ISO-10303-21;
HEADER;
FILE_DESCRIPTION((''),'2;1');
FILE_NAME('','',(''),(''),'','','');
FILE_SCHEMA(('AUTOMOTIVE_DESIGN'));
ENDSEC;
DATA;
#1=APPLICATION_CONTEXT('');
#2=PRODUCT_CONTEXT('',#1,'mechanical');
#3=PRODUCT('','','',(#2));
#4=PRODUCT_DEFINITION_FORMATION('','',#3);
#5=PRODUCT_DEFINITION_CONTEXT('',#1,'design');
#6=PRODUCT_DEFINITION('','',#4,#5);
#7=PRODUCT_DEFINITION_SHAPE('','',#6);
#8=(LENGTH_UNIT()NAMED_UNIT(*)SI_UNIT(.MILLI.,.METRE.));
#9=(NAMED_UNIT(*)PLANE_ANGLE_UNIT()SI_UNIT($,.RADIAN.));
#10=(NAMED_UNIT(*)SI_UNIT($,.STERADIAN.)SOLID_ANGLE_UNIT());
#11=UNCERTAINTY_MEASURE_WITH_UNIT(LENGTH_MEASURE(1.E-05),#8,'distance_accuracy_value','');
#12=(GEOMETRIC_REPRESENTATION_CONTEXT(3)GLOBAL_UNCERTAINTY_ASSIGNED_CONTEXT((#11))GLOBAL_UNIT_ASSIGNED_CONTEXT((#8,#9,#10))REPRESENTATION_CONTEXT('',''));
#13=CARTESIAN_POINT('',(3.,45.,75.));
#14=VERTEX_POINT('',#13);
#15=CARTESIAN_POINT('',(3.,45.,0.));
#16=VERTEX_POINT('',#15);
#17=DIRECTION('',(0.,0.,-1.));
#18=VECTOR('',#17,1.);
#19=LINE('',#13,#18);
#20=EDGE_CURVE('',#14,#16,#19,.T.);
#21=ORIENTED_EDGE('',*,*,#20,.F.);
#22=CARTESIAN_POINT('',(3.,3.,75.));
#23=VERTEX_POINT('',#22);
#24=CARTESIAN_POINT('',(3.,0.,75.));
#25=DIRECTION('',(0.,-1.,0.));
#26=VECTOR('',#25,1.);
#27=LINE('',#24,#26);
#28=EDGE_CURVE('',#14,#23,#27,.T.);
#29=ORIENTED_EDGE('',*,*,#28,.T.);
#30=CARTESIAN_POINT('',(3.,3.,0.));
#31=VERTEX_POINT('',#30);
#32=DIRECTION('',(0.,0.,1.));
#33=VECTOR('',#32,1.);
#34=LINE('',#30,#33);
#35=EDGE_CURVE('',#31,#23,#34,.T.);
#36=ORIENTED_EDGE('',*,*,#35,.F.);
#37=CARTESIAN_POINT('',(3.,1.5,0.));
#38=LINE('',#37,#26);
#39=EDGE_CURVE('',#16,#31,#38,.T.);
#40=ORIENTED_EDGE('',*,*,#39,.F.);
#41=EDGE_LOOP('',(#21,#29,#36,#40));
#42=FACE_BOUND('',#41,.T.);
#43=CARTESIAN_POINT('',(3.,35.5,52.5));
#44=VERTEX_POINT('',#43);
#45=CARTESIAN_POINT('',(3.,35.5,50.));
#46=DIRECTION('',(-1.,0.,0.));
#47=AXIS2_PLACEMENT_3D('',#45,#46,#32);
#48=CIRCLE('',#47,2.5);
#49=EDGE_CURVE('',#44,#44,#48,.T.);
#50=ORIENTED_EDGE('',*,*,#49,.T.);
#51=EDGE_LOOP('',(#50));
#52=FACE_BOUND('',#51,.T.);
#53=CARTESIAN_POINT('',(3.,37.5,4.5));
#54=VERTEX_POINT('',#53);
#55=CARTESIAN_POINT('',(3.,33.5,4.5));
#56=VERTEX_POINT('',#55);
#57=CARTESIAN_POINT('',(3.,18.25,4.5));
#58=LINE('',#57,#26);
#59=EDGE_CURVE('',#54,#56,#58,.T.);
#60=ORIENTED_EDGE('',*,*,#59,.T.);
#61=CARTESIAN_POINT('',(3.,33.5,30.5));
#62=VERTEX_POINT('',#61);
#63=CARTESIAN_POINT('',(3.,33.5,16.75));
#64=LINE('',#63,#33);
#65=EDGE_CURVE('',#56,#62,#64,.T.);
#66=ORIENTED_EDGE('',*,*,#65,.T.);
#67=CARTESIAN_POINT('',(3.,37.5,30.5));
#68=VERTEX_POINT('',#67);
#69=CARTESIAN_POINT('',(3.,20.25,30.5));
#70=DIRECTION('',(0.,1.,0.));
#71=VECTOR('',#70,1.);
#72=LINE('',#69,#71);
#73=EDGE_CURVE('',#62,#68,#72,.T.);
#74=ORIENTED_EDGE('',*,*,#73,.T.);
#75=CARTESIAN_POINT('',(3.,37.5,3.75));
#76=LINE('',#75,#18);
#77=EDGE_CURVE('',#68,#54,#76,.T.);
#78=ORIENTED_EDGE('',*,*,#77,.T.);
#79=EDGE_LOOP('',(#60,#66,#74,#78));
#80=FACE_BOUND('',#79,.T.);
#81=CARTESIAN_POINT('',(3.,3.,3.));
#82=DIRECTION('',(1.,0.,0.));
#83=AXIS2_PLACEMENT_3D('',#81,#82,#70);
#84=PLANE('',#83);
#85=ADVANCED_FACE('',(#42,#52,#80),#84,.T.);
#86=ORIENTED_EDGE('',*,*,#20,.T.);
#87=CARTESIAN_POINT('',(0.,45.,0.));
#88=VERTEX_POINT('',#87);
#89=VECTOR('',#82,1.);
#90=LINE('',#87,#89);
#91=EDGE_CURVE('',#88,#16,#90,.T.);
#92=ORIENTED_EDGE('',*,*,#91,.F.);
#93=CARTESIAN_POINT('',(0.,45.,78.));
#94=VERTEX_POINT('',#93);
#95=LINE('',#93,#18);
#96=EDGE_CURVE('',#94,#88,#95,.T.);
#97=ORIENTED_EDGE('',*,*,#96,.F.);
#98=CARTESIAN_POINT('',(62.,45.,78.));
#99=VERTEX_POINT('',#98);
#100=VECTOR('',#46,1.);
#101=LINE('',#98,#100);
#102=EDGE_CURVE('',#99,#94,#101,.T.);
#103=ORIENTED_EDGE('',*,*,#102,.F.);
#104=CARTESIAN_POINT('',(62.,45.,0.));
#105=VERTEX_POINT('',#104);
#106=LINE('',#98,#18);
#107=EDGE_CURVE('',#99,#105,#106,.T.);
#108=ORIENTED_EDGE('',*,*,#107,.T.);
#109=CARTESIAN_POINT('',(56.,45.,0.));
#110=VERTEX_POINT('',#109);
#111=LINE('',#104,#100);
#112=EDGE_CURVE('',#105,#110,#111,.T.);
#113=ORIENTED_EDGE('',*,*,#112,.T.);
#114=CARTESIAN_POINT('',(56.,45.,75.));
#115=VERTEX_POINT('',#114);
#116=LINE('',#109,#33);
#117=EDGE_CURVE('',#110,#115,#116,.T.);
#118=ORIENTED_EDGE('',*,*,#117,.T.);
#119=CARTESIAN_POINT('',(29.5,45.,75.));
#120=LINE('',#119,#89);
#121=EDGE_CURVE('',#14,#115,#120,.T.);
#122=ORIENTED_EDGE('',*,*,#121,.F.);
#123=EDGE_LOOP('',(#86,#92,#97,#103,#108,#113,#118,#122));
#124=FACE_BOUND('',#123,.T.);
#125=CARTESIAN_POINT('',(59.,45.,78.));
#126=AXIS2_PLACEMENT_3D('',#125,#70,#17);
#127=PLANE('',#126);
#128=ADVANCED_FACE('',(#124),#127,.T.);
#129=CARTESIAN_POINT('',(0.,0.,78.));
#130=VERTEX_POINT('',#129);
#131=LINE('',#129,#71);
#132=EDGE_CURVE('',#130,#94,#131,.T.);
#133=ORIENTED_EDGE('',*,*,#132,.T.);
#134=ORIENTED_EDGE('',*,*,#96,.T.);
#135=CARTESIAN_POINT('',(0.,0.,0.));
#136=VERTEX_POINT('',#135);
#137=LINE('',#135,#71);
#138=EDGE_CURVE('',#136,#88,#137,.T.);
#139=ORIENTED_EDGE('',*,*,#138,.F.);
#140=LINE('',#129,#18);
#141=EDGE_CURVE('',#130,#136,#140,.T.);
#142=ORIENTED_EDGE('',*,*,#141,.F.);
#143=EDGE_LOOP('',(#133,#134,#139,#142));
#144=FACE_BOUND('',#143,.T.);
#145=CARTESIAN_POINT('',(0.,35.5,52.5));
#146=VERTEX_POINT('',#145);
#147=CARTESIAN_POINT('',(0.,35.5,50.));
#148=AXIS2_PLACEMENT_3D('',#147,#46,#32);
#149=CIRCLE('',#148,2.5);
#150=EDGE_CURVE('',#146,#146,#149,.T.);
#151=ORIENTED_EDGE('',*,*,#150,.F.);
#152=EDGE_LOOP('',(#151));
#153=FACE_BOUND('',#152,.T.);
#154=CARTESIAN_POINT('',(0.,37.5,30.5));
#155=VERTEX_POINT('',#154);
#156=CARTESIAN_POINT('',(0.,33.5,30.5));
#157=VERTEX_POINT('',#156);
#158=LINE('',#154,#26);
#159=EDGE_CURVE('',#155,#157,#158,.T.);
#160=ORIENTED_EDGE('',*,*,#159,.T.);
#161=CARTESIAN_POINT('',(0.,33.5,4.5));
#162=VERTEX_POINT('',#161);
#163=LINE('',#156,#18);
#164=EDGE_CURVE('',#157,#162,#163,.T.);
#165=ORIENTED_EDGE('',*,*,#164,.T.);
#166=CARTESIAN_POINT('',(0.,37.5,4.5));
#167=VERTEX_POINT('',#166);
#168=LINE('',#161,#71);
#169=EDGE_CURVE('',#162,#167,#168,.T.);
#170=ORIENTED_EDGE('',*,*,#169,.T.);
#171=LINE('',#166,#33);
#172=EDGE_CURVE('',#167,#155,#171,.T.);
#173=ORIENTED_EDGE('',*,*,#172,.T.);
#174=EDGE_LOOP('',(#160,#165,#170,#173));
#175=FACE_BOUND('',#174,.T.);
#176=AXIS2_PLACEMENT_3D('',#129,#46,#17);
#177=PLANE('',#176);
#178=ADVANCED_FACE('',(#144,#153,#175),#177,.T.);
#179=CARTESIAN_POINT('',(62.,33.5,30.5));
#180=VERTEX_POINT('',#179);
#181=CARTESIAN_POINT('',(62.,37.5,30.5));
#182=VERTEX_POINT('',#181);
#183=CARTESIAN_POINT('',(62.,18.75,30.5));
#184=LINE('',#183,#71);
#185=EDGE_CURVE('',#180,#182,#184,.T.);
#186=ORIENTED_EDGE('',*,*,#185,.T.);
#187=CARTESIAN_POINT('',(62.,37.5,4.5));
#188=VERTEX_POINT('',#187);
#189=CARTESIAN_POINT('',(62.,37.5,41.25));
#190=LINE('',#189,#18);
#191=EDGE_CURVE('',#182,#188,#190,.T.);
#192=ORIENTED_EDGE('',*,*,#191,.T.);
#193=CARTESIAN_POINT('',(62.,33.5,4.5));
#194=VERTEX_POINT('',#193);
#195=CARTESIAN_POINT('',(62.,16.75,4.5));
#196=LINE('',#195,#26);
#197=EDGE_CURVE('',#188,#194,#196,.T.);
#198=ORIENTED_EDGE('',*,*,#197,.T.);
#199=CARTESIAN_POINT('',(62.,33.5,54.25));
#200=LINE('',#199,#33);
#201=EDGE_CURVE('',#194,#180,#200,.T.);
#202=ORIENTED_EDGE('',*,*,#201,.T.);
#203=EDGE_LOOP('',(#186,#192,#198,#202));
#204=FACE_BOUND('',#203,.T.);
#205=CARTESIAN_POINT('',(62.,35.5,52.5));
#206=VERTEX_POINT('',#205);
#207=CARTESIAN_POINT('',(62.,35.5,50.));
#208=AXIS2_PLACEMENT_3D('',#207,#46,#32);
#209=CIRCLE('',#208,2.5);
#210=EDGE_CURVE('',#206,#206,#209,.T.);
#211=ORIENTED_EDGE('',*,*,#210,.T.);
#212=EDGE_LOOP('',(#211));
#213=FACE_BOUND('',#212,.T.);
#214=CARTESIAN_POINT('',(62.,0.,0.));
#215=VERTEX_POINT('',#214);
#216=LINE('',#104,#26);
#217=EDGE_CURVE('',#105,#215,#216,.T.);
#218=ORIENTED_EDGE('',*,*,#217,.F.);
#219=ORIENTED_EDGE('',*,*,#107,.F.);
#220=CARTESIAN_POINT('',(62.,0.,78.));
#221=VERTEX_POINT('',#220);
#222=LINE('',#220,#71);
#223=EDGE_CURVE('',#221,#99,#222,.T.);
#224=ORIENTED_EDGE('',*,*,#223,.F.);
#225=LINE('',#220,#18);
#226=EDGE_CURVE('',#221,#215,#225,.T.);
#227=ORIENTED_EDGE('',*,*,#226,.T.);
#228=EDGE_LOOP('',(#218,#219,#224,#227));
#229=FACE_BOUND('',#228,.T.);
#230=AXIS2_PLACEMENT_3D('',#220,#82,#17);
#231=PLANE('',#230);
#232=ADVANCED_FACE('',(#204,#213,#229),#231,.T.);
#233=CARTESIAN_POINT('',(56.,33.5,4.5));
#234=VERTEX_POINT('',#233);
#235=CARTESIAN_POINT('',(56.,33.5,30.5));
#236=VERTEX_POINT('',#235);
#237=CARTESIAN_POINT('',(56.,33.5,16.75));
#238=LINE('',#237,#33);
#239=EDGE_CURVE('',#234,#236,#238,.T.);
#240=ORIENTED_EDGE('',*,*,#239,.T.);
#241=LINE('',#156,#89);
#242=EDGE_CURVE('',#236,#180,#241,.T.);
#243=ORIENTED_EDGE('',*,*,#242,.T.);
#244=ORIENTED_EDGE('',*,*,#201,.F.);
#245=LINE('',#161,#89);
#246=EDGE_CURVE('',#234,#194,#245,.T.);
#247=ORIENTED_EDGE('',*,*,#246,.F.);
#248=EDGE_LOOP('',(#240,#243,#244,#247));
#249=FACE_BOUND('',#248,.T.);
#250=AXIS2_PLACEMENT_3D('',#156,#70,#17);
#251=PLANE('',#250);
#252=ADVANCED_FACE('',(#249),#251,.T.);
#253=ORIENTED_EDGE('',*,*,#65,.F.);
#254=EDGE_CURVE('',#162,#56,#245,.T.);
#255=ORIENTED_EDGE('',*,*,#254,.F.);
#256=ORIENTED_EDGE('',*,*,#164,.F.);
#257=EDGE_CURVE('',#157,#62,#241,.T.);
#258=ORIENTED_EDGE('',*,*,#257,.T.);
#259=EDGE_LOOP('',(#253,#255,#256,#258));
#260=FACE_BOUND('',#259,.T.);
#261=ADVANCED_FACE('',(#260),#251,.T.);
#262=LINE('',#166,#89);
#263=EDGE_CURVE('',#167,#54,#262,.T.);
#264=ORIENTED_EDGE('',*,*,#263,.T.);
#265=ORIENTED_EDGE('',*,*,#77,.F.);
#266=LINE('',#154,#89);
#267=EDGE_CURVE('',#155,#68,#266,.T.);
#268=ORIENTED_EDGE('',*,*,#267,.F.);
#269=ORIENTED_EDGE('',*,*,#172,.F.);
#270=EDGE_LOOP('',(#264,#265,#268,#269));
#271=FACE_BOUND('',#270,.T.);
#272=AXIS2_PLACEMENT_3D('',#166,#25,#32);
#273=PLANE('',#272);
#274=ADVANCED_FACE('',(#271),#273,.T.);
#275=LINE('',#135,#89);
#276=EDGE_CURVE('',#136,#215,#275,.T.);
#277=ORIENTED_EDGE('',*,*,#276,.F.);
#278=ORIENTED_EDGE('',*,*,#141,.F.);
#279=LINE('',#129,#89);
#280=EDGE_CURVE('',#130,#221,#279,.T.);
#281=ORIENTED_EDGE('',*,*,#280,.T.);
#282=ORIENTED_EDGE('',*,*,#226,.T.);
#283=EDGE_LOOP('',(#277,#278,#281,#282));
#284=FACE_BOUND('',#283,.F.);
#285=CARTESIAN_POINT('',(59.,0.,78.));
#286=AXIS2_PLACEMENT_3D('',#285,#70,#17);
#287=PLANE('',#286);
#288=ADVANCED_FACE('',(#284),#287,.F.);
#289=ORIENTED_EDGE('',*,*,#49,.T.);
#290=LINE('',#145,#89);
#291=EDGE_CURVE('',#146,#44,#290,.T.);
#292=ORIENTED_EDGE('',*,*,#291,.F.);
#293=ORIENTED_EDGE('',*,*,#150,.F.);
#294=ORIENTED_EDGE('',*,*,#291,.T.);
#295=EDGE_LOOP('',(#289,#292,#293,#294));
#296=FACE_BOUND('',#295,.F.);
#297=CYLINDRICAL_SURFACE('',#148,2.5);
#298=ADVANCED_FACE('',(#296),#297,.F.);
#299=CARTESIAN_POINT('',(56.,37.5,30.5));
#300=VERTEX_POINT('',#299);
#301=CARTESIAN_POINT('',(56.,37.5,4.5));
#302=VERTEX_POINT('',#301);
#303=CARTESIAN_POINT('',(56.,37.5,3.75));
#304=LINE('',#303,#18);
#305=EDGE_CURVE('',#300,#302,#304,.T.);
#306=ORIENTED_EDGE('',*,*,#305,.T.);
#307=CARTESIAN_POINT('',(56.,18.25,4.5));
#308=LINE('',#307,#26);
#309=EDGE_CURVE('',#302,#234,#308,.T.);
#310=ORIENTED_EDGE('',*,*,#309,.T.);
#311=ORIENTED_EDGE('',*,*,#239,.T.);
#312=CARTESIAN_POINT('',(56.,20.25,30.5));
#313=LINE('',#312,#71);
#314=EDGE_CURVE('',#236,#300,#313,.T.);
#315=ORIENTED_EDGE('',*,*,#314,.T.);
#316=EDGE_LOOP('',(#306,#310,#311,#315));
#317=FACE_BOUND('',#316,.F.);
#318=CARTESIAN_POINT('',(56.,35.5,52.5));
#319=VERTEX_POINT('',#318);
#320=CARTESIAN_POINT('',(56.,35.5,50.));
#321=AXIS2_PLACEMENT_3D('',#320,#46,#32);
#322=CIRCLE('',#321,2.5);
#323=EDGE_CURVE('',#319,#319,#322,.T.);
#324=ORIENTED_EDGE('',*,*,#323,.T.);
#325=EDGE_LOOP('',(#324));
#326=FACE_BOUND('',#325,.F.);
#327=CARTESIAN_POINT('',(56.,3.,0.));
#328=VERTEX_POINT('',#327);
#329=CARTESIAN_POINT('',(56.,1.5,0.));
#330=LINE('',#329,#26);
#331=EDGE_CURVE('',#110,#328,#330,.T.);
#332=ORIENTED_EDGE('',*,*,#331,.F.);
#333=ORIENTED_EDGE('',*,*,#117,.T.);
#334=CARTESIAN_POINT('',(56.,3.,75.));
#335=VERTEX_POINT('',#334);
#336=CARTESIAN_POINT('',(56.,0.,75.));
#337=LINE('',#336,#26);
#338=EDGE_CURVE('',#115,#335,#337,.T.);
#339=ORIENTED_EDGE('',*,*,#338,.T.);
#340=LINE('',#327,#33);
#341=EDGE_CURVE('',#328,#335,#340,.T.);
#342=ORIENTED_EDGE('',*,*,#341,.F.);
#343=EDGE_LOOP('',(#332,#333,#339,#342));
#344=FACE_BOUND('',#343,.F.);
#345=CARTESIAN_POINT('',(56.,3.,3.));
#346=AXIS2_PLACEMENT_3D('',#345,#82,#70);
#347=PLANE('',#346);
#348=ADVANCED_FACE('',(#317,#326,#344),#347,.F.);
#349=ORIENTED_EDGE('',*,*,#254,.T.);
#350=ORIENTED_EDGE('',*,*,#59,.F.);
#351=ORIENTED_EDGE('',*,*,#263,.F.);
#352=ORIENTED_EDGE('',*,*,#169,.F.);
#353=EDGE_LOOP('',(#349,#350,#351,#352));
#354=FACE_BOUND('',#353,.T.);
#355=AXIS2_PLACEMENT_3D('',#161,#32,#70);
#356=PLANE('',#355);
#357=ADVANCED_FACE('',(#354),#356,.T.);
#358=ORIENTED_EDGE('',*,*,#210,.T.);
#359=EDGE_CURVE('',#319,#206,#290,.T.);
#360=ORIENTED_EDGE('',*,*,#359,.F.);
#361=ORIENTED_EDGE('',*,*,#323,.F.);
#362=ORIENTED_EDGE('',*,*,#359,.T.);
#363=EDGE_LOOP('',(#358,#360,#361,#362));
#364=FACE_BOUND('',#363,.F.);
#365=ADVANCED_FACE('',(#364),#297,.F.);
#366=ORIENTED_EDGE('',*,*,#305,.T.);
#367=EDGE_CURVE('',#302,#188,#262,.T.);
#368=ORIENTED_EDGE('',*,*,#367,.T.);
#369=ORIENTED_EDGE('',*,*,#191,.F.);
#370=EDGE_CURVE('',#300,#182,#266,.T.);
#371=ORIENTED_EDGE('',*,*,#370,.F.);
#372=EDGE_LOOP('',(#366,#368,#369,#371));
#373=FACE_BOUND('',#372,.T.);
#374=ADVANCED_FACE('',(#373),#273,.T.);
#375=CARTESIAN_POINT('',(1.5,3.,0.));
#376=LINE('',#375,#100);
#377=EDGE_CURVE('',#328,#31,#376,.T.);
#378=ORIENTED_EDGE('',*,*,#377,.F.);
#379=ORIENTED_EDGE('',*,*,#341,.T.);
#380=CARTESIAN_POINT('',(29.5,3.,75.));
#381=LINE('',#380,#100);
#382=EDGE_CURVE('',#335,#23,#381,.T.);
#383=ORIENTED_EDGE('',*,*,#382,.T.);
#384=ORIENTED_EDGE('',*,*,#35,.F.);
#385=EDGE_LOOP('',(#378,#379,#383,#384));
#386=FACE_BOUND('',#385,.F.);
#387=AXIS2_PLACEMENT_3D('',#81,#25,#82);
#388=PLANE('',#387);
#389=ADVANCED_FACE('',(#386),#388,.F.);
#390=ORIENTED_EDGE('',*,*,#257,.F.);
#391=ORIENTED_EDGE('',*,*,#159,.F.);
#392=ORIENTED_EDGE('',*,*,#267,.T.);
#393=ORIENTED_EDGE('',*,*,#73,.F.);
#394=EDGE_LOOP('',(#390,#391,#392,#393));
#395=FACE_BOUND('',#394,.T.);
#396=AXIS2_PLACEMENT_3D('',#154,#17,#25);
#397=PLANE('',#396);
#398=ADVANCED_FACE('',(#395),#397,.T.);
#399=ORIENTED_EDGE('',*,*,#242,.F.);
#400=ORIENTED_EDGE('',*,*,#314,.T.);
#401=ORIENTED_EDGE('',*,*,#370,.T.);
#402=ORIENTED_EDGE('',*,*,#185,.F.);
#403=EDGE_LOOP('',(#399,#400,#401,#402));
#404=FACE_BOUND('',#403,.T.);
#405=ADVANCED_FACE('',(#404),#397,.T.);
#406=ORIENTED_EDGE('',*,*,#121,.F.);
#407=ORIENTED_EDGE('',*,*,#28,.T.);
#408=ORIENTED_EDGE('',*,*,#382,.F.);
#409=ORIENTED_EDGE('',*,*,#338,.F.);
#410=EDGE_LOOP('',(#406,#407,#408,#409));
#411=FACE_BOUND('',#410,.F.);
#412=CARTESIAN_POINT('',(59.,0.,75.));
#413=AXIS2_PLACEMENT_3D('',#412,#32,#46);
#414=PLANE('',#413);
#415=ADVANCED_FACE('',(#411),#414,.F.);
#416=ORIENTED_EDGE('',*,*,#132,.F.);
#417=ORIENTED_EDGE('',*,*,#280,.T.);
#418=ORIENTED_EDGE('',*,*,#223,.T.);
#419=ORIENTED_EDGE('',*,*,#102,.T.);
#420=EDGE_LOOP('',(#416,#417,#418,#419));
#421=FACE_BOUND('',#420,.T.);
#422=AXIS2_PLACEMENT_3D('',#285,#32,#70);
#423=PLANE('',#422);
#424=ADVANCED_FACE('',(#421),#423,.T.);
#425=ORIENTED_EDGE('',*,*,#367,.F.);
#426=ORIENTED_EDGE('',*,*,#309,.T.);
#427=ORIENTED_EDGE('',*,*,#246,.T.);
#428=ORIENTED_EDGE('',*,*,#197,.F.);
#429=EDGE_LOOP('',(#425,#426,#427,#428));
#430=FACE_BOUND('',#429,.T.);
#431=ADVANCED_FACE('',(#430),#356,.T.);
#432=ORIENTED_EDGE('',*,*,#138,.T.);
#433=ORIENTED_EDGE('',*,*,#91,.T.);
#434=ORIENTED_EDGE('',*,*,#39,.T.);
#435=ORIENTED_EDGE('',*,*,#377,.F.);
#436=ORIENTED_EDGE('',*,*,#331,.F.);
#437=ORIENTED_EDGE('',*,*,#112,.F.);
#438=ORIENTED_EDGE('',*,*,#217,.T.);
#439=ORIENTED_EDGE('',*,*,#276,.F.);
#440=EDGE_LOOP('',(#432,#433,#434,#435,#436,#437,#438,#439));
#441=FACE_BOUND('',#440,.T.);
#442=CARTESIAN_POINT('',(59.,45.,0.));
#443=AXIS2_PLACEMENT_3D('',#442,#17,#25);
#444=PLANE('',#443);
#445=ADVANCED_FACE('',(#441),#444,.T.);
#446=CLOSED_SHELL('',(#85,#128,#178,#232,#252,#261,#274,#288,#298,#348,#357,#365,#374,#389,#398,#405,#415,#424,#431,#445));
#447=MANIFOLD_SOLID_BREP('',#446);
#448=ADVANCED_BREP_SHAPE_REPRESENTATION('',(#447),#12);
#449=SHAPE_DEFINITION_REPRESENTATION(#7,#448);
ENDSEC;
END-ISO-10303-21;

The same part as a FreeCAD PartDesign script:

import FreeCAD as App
import Part
import Sketcher
from FreeCAD import Vector
Q = App.Units.Quantity


def faces_at(feature, points):
    """Names of the faces that lie closest to the given points."""
    faces = feature.Shape.Faces
    near = lambda p: min(range(len(faces)), key=lambda i: faces[i].distToShape(Part.Vertex(*p))[0])
    return sorted({f"Face{near(p) + 1}" for p in points})


def add_polygon(sketch, points):
    """Adds a closed chain of lines whose ends are joined by coincident constraints."""
    first, n = sketch.GeometryCount, len(points)
    for a, b in zip(points, points[1:] + points[:1]):
        sketch.addGeometry(Part.LineSegment(App.Vector(*a, 0), App.Vector(*b, 0)), False)
    for i in range(n):
        sketch.addConstraint(Sketcher.Constraint("Coincident", first + i, 2, first + (i + 1) % n, 1))

doc = App.newDocument("Part")
body = doc.addObject("PartDesign::Body", "Body")

# Sketch on XZ plane
sketch1 = doc.addObject("Sketcher::SketchObject", "Sketch")
body.addObject(sketch1)
sketch1.AttachmentSupport = (doc.XZ_Plane, [""])
sketch1.MapMode = "FlatFace"
add_polygon(sketch1, [(59, 0), (0, 0), (0, 78), (59, 78)])  # lines 0-3
sketch1.addConstraint(Sketcher.Constraint("Horizontal", 0))
sketch1.addConstraint(Sketcher.Constraint("Vertical", 1))
sketch1.addConstraint(Sketcher.Constraint("Horizontal", 2))
sketch1.addConstraint(Sketcher.Constraint("Vertical", 3))
sketch1.addConstraint(Sketcher.Constraint("Coincident", 0, 2, -1, 1))
sketch1.addConstraint(Sketcher.Constraint("DistanceX", 0, 2, 0, 1, Q("59 mm")))
sketch1.addConstraint(Sketcher.Constraint("DistanceY", 1, 1, 1, 2, Q("78 mm")))
pad1 = doc.addObject("PartDesign::Pad", "Pad")
body.addObject(pad1)
pad1.Profile = sketch1
pad1.Length = 45
pad1.Reversed = True
doc.recompute()

thickness = doc.addObject("PartDesign::Thickness", "Thickness")
body.addObject(thickness)
thickness.Base = (pad1, faces_at(pad1, [(39.333, 45, 52)]))
thickness.Value = 3
thickness.Reversed = True
thickness.Join = "Intersection"

# Sketch on XY plane
sketch2 = doc.addObject("Sketcher::SketchObject", "Sketch001")
body.addObject(sketch2)
sketch2.AttachmentSupport = (doc.XY_Plane, [""])
sketch2.MapMode = "FlatFace"
sketch2.AttachmentOffset = App.Placement(Vector(0, 0, 3), App.Rotation())
add_polygon(sketch2, [(3, 45), (3, 3), (56, 3), (56, 45)])  # lines 0-3
sketch2.addConstraint(Sketcher.Constraint("Vertical", 0))
sketch2.addConstraint(Sketcher.Constraint("Horizontal", 1))
sketch2.addConstraint(Sketcher.Constraint("Vertical", 2))
sketch2.addConstraint(Sketcher.Constraint("Horizontal", 3))
sketch2.addConstraint(Sketcher.Constraint("DistanceX", 1, 1, 1, 2, Q("53 mm")))
sketch2.addConstraint(Sketcher.Constraint("DistanceY", 0, 2, 0, 1, Q("42 mm")))
sketch2.addConstraint(Sketcher.Constraint("DistanceX", -1, 1, 0, 2, Q("3 mm")))
sketch2.addConstraint(Sketcher.Constraint("DistanceY", -1, 1, 0, 2, Q("3 mm")))
pocket1 = doc.addObject("PartDesign::Pocket", "Pocket")
body.addObject(pocket1)
pocket1.Profile = sketch2
pocket1.Length = 10

# Sketch on YZ plane
sketch3 = doc.addObject("Sketcher::SketchObject", "Sketch002")
body.addObject(sketch3)
sketch3.AttachmentSupport = (doc.YZ_Plane, [""])
sketch3.MapMode = "FlatFace"
sketch3.AttachmentOffset = App.Placement(Vector(0, 0, 59), App.Rotation())
add_polygon(sketch3, [(45, 78), (0, 78), (0, 0), (45, 0)])  # lines 0-3
sketch3.addConstraint(Sketcher.Constraint("Horizontal", 0))
sketch3.addConstraint(Sketcher.Constraint("Vertical", 1))
sketch3.addConstraint(Sketcher.Constraint("Horizontal", 2))
sketch3.addConstraint(Sketcher.Constraint("Vertical", 3))
sketch3.addConstraint(Sketcher.Constraint("Coincident", 1, 2, -1, 1))
sketch3.addConstraint(Sketcher.Constraint("DistanceX", 0, 2, 0, 1, Q("45 mm")))
sketch3.addConstraint(Sketcher.Constraint("DistanceY", 1, 2, 1, 1, Q("78 mm")))
pad2 = doc.addObject("PartDesign::Pad", "Pad001")
body.addObject(pad2)
pad2.Profile = sketch3
pad2.Length = 3

# Sketch on YZ plane
sketch4 = doc.addObject("Sketcher::SketchObject", "Sketch003")
body.addObject(sketch4)
sketch4.AttachmentSupport = (doc.YZ_Plane, [""])
sketch4.MapMode = "FlatFace"
add_polygon(sketch4, [(37.5, 30.5), (37.5, 4.5), (33.5, 4.5), (33.5, 30.5)])  # lines 0-3
sketch4.addConstraint(Sketcher.Constraint("Vertical", 0))
sketch4.addConstraint(Sketcher.Constraint("Horizontal", 1))
sketch4.addConstraint(Sketcher.Constraint("Vertical", 2))
sketch4.addConstraint(Sketcher.Constraint("Horizontal", 3))
sketch4.addConstraint(Sketcher.Constraint("DistanceX", 1, 2, 1, 1, Q("4 mm")))
sketch4.addConstraint(Sketcher.Constraint("DistanceY", 0, 2, 0, 1, Q("26 mm")))
sketch4.addConstraint(Sketcher.Constraint("DistanceY", -1, 1, 0, 2, Q("4.5 mm")))
sketch4.addConstraint(Sketcher.Constraint("DistanceX", -1, 1, 1, 2, Q("33.5 mm")))
pocket2 = doc.addObject("PartDesign::Pocket", "Pocket001")
body.addObject(pocket2)
pocket2.Profile = sketch4
pocket2.Type = "ThroughAll"
pocket2.Reversed = True

# Sketch on YZ plane
sketch5 = doc.addObject("Sketcher::SketchObject", "Sketch004")
body.addObject(sketch5)
sketch5.AttachmentSupport = (doc.YZ_Plane, [""])
sketch5.MapMode = "FlatFace"
sketch5.addGeometry(Part.Circle(Vector(35.5, 50, 0), Vector(0, 0, 1), 2.5), False)
sketch5.addConstraint(Sketcher.Constraint("Diameter", 0, Q("5 mm")))
sketch5.addConstraint(Sketcher.Constraint("DistanceY", -1, 1, 0, 3, Q("50 mm")))
sketch5.addConstraint(Sketcher.Constraint("DistanceX", -1, 1, 0, 3, Q("35.5 mm")))
pocket3 = doc.addObject("PartDesign::Pocket", "Pocket002")
body.addObject(pocket3)
pocket3.Profile = sketch5
pocket3.Type = "ThroughAll"
pocket3.Reversed = True

doc.recompute()
